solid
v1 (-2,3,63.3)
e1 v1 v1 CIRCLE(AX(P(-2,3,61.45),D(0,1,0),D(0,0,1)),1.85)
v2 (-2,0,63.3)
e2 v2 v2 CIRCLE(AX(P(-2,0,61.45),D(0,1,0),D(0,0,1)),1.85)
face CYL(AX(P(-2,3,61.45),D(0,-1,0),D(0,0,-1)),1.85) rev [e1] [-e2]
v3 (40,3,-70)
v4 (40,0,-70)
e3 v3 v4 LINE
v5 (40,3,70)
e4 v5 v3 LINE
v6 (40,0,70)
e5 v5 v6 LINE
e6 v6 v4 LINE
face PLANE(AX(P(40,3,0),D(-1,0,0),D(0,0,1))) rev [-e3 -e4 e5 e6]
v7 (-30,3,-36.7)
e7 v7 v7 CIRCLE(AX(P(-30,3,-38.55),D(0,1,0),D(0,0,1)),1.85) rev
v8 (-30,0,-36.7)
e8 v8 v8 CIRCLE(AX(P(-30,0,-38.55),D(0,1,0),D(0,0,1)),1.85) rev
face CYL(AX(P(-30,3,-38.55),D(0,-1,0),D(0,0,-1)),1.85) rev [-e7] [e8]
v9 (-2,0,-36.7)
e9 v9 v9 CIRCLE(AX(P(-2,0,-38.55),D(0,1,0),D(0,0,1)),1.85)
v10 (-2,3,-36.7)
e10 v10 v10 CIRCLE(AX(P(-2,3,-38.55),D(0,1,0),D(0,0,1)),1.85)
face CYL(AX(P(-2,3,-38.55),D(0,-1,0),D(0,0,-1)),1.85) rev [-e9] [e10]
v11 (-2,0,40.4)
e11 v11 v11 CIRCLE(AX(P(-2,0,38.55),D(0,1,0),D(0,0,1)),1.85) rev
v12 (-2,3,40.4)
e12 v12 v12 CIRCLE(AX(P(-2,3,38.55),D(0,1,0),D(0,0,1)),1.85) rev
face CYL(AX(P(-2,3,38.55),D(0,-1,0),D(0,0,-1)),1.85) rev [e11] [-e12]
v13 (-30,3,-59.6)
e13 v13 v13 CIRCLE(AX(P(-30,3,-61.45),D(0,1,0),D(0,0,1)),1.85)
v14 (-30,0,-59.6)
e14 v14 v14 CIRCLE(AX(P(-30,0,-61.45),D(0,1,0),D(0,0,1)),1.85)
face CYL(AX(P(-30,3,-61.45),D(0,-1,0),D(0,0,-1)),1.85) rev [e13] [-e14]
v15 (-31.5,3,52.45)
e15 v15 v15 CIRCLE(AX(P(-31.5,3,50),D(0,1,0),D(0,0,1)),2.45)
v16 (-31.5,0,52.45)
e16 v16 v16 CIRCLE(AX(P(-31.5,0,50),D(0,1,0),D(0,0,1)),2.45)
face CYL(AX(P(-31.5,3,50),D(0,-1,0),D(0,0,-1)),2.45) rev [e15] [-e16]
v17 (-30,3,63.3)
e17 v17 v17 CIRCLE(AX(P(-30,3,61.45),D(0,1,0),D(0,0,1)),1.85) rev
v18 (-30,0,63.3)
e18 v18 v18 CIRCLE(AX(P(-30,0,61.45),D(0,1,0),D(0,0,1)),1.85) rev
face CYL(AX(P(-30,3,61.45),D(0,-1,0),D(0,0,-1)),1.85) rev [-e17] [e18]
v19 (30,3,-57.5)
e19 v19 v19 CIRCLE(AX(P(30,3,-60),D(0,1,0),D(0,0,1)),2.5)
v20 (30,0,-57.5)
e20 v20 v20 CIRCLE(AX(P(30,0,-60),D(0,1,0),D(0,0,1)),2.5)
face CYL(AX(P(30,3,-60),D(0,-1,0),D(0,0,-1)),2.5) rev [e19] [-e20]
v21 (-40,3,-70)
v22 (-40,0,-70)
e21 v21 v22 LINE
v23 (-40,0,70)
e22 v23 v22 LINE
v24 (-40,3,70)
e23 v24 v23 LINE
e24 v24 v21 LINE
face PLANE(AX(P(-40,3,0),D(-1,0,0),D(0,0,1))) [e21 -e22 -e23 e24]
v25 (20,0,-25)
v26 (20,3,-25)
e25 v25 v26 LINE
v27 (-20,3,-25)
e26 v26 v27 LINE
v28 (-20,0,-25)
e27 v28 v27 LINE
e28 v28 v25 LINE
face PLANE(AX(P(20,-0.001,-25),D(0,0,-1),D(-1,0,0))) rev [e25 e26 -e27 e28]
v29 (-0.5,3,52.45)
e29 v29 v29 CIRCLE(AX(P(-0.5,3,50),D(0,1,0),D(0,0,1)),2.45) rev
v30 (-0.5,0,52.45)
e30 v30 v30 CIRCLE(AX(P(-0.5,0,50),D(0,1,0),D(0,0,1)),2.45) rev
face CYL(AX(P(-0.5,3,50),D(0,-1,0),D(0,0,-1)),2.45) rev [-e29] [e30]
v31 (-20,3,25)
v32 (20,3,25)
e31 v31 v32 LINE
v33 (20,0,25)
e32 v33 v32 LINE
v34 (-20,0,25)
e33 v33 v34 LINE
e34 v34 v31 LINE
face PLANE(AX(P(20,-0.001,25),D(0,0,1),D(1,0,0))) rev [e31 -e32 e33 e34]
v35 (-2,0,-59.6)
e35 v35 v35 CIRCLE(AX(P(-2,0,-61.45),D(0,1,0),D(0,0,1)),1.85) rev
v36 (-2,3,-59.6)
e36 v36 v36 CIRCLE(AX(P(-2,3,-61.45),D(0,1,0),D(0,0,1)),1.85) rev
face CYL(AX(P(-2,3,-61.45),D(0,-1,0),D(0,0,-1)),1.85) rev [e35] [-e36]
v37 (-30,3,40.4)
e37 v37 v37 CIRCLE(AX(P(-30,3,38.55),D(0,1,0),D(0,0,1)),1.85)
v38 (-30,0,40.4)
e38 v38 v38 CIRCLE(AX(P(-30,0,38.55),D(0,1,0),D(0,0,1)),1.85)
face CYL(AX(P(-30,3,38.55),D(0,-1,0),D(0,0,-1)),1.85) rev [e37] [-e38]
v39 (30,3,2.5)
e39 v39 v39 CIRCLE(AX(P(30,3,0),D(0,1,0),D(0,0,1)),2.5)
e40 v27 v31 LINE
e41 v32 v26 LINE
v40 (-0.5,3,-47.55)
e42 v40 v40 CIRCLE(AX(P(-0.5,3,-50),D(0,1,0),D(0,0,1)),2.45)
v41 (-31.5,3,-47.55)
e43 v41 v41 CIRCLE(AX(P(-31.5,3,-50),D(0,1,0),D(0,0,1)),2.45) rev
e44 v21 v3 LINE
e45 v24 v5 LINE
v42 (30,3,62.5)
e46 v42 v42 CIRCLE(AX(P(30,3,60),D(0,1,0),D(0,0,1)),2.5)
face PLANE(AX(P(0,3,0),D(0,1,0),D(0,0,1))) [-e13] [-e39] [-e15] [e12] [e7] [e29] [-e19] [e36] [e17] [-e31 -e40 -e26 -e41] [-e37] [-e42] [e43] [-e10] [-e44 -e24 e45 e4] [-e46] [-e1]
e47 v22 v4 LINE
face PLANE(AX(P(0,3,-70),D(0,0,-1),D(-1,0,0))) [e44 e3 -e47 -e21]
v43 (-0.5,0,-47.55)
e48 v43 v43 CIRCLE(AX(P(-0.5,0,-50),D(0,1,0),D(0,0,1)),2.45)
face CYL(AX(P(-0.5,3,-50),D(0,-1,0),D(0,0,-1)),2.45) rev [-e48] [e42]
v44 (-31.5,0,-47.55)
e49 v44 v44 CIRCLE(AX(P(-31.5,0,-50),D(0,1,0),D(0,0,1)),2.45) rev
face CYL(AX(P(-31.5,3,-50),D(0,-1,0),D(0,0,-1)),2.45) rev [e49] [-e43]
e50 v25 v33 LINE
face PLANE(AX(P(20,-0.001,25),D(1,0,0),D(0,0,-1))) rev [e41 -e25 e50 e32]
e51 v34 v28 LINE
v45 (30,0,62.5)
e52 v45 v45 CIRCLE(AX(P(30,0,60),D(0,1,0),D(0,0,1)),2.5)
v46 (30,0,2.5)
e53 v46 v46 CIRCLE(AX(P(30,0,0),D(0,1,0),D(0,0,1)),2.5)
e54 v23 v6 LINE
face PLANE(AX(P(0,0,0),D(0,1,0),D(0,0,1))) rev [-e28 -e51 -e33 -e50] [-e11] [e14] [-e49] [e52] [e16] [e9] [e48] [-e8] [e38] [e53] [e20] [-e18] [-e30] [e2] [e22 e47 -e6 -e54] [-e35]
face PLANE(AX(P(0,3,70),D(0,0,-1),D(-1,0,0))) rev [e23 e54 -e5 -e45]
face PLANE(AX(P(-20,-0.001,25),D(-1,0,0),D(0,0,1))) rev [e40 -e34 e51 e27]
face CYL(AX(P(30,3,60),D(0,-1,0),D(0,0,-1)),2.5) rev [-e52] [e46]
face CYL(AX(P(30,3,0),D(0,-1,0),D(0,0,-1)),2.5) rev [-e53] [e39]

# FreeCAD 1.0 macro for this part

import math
import FreeCAD as App
import Part
import Sketcher
from FreeCAD import Vector

doc = App.newDocument("Part")
params = doc.addObject("Spreadsheet::Sheet", "Params")
for row, (alias, value) in enumerate([
    ("sketch1_diameter", "5 mm"),
    ("sketch1_diameter2", "4.9 mm"),
    ("sketch1_diameter3", "3.7 mm"),
    ("sketch1_width", "80 mm"),
    ("sketch1_height", "140 mm"),
    ("pad1_length", "3 mm"),
    ("sketch2_width", "40 mm"),
    ("sketch2_height", "50 mm"),
], start=1):
    params.set(f"A{row}", alias)
    params.set(f"B{row}", "=" + value)
    params.setAlias(f"B{row}", alias)

body = doc.addObject("PartDesign::Body", "Body")

# Sketch on XZ plane
sketch1 = body.newObject("Sketcher::SketchObject", "Sketch")
sketch1.AttachmentSupport = (doc.getObject("XZ_Plane"), [""])
sketch1.MapMode = "FlatFace"
sketch1.addGeometry(Part.LineSegment(Vector(40, 70, 0), Vector(40, -70, 0)), False)
sketch1.addGeometry(Part.LineSegment(Vector(40, -70, 0), Vector(-40, -70, 0)), False)
sketch1.addGeometry(Part.LineSegment(Vector(-40, -70, 0), Vector(-40, 70, 0)), False)
sketch1.addGeometry(Part.LineSegment(Vector(-40, 70, 0), Vector(40, 70, 0)), False)
sketch1.addGeometry(Part.ArcOfCircle(Part.Circle(Vector(30, -60, 0), Vector(0, 0, 1), 2.5), math.radians(0), math.radians(270)), False)
sketch1.addGeometry(Part.ArcOfCircle(Part.Circle(Vector(30, -60, 0), Vector(0, 0, 1), 2.5), math.radians(-90), math.radians(0)), False)
sketch1.addGeometry(Part.Circle(Vector(30, 60, 0), Vector(0, 0, 1), 2.5), False)
sketch1.addGeometry(Part.Circle(Vector(30, 0, 0), Vector(0, 0, 1), 2.5), False)
sketch1.addGeometry(Part.Circle(Vector(-0.5, 50, 0), Vector(0, 0, 1), 2.5), False)
sketch1.addGeometry(Part.Circle(Vector(-2, 38.5, 0), Vector(0, 0, 1), 1.9), False)
sketch1.addGeometry(Part.Circle(Vector(-30, 61.5, 0), Vector(0, 0, 1), 1.9), False)
sketch1.addGeometry(Part.Circle(Vector(-2, 61.5, 0), Vector(0, 0, 1), 1.9), False)
sketch1.addGeometry(Part.Circle(Vector(-31.5, 50, 0), Vector(0, 0, 1), 2.5), False)
sketch1.addGeometry(Part.Circle(Vector(-30, 38.5, 0), Vector(0, 0, 1), 1.9), False)
sketch1.addGeometry(Part.Circle(Vector(-2, -61.5, 0), Vector(0, 0, 1), 1.9), False)
sketch1.addGeometry(Part.ArcOfCircle(Part.Circle(Vector(-30, -61.5, 0), Vector(0, 0, 1), 1.9), math.radians(0), math.radians(180)), False)
sketch1.addGeometry(Part.ArcOfCircle(Part.Circle(Vector(-30, -61.4, 0), Vector(0, 0, 1), 1.9), math.radians(-180), math.radians(-90)), False)
sketch1.addGeometry(Part.ArcOfCircle(Part.Circle(Vector(-30, -61.4, 0), Vector(0, 0, 1), 1.9), math.radians(-90), math.radians(0)), False)
sketch1.addGeometry(Part.Circle(Vector(-0.5, -50, 0), Vector(0, 0, 1), 2.5), False)
sketch1.addGeometry(Part.Circle(Vector(-30, -38.5, 0), Vector(0, 0, 1), 1.9), False)
sketch1.addGeometry(Part.Circle(Vector(-2, -38.5, 0), Vector(0, 0, 1), 1.9), False)
sketch1.addGeometry(Part.Circle(Vector(-31.5, -50, 0), Vector(0, 0, 1), 2.5), False)
sketch1.addConstraint(Sketcher.Constraint("Coincident", 0, 2, 1, 1))
sketch1.addConstraint(Sketcher.Constraint("Coincident", 1, 2, 2, 1))
sketch1.addConstraint(Sketcher.Constraint("Coincident", 2, 2, 3, 1))
sketch1.addConstraint(Sketcher.Constraint("Coincident", 3, 2, 0, 1))
sketch1.addConstraint(Sketcher.Constraint("Tangent", 4, 1, 5, 2))
sketch1.addConstraint(Sketcher.Constraint("Coincident", 5, 1, 4, 2))
sketch1.addConstraint(Sketcher.Constraint("Tangent", 15, 2, 16, 1))
sketch1.addConstraint(Sketcher.Constraint("Tangent", 16, 2, 17, 1))
sketch1.addConstraint(Sketcher.Constraint("Tangent", 17, 2, 15, 1))
sketch1.addConstraint(Sketcher.Constraint("Vertical", 0))
sketch1.addConstraint(Sketcher.Constraint("Horizontal", 1))
sketch1.addConstraint(Sketcher.Constraint("Vertical", 2))
sketch1.addConstraint(Sketcher.Constraint("Horizontal", 3))
sketch1.addConstraint(Sketcher.Constraint("Equal", 5, 6))
sketch1.addConstraint(Sketcher.Constraint("Equal", 6, 7))
sketch1.addConstraint(Sketcher.Constraint("Equal", 9, 10))
sketch1.addConstraint(Sketcher.Constraint("Equal", 10, 11))
sketch1.addConstraint(Sketcher.Constraint("Equal", 8, 12))
sketch1.addConstraint(Sketcher.Constraint("Equal", 11, 13))
sketch1.addConstraint(Sketcher.Constraint("Equal", 13, 14))
sketch1.addConstraint(Sketcher.Constraint("Equal", 14, 15))
sketch1.addConstraint(Sketcher.Constraint("Equal", 12, 18))
sketch1.addConstraint(Sketcher.Constraint("Equal", 17, 19))
sketch1.addConstraint(Sketcher.Constraint("Equal", 19, 20))
sketch1.addConstraint(Sketcher.Constraint("Equal", 18, 21))
sketch1.addConstraint(Sketcher.Constraint("Symmetric", 0, 2, 2, 2, -1, 1))
sketch1.addConstraint(Sketcher.Constraint("Symmetric", 4, 3, 6, 3, -1))
sketch1.addConstraint(Sketcher.Constraint("Symmetric", 11, 3, 14, 3, -1))
sketch1.addConstraint(Sketcher.Constraint("Symmetric", 10, 3, 15, 3, -1))
sketch1.addConstraint(Sketcher.Constraint("Symmetric", 8, 3, 18, 3, -1))
sketch1.addConstraint(Sketcher.Constraint("Symmetric", 13, 3, 19, 3, -1))
sketch1.addConstraint(Sketcher.Constraint("Symmetric", 9, 3, 20, 3, -1))
sketch1.addConstraint(Sketcher.Constraint("Symmetric", 12, 3, 21, 3, -1))
sketch1.addConstraint(Sketcher.Constraint("PointOnObject", 7, 3, -1))
sketch1.addConstraint(Sketcher.Constraint("Horizontal", 10, 3, 11, 3))
sketch1.addConstraint(Sketcher.Constraint("Horizontal", 8, 3, 12, 3))
sketch1.addConstraint(Sketcher.Constraint("Horizontal", 9, 3, 13, 3))
sketch1.addConstraint(Sketcher.Constraint("Horizontal", 5, 3, 4, 1))
sketch1.addConstraint(Sketcher.Constraint("Horizontal", 17, 3, 15, 2))
sketch1.addConstraint(Sketcher.Constraint("Horizontal", 15, 2, 17, 2))
sketch1.addConstraint(Sketcher.Constraint("Vertical", 6, 3, 7, 3))
sketch1.addConstraint(Sketcher.Constraint("Vertical", 9, 3, 11, 3))
sketch1.addConstraint(Sketcher.Constraint("Vertical", 10, 3, 13, 3))
sketch1.addConstraint(Sketcher.Constraint("Vertical", 7, 3, 5, 1))
sketch1.addConstraint(Sketcher.Constraint("Vertical", 19, 3, 16, 2))
sketch1.addConstraint(Sketcher.Constraint("Diameter", 6, 5.0))
sketch1.addConstraint(Sketcher.Constraint("Diameter", 8, 4.9))
sketch1.addConstraint(Sketcher.Constraint("Diameter", 9, 3.7))
sketch1.addConstraint(Sketcher.Constraint("DistanceX", 1, 2, 1, 1, 80.0))
sketch1.addConstraint(Sketcher.Constraint("DistanceY", 0, 2, 0, 1, 140.0))
sketch1.addConstraint(Sketcher.Constraint("DistanceX", -1, 1, 4, 3, 30.0))
sketch1.addConstraint(Sketcher.Constraint("DistanceY", 4, 3, -1, 1, 60.0))
sketch1.addConstraint(Sketcher.Constraint("DistanceY", -1, 1, 8, 3, 50.0))
sketch1.addConstraint(Sketcher.Constraint("DistanceX", 9, 3, -1, 1, 2.0))
sketch1.addConstraint(Sketcher.Constraint("DistanceX", 10, 3, -1, 1, 30.0))
sketch1.addConstraint(Sketcher.Constraint("DistanceX", 12, 3, 8, 3, 31.0))
sketch1.addConstraint(Sketcher.Constraint("DistanceY", 14, 3, 9, 3, 100.0))
sketch1.addConstraint(Sketcher.Constraint("DistanceX", 18, 3, 4, 1, 33.0))
sketch1.addConstraint(Sketcher.Constraint("DistanceY", 16, 2, -1, 1, 63.3))
sketch1.setExpression("Constraints[45]", "Params.sketch1_diameter")
sketch1.setExpression("Constraints[46]", "Params.sketch1_diameter2")
sketch1.setExpression("Constraints[47]", "Params.sketch1_diameter3")
sketch1.setExpression("Constraints[48]", "Params.sketch1_width")
sketch1.setExpression("Constraints[49]", "Params.sketch1_height")
pad1 = body.newObject("PartDesign::Pad", "Pad")
pad1.Profile = sketch1
pad1.setExpression("Length", "Params.pad1_length")
pad1.Reversed = True

# Sketch on XZ plane
sketch2 = body.newObject("Sketcher::SketchObject", "Sketch001")
sketch2.AttachmentSupport = (doc.getObject("XZ_Plane"), [""])
sketch2.MapMode = "FlatFace"
sketch2.AttachmentOffset = App.Placement(Vector(0, 0, -3), App.Rotation())
sketch2.addGeometry(Part.LineSegment(Vector(-20, -25, 0), Vector(-20, 25, 0)), False)
sketch2.addGeometry(Part.LineSegment(Vector(-20, 25, 0), Vector(20, 25, 0)), False)
sketch2.addGeometry(Part.LineSegment(Vector(20, 25, 0), Vector(20, -25, 0)), False)
sketch2.addGeometry(Part.LineSegment(Vector(20, -25, 0), Vector(-20, -25, 0)), False)
sketch2.addConstraint(Sketcher.Constraint("Coincident", 0, 2, 1, 1))
sketch2.addConstraint(Sketcher.Constraint("Coincident", 1, 2, 2, 1))
sketch2.addConstraint(Sketcher.Constraint("Coincident", 2, 2, 3, 1))
sketch2.addConstraint(Sketcher.Constraint("Coincident", 3, 2, 0, 1))
sketch2.addConstraint(Sketcher.Constraint("Vertical", 0))
sketch2.addConstraint(Sketcher.Constraint("Horizontal", 1))
sketch2.addConstraint(Sketcher.Constraint("Vertical", 2))
sketch2.addConstraint(Sketcher.Constraint("Horizontal", 3))
sketch2.addConstraint(Sketcher.Constraint("Symmetric", 0, 2, 2, 2, -1, 1))
sketch2.addConstraint(Sketcher.Constraint("DistanceX", 1, 1, 1, 2, 40.0))
sketch2.addConstraint(Sketcher.Constraint("DistanceY", 0, 1, 0, 2, 50.0))
sketch2.setExpression("Constraints[9]", "Params.sketch2_width")
sketch2.setExpression("Constraints[10]", "Params.sketch2_height")
pocket1 = body.newObject("PartDesign::Pocket", "Pocket")
pocket1.Profile = sketch2
pocket1.Type = "UpToFirst"
pocket1.Reversed = True

doc.recompute()
